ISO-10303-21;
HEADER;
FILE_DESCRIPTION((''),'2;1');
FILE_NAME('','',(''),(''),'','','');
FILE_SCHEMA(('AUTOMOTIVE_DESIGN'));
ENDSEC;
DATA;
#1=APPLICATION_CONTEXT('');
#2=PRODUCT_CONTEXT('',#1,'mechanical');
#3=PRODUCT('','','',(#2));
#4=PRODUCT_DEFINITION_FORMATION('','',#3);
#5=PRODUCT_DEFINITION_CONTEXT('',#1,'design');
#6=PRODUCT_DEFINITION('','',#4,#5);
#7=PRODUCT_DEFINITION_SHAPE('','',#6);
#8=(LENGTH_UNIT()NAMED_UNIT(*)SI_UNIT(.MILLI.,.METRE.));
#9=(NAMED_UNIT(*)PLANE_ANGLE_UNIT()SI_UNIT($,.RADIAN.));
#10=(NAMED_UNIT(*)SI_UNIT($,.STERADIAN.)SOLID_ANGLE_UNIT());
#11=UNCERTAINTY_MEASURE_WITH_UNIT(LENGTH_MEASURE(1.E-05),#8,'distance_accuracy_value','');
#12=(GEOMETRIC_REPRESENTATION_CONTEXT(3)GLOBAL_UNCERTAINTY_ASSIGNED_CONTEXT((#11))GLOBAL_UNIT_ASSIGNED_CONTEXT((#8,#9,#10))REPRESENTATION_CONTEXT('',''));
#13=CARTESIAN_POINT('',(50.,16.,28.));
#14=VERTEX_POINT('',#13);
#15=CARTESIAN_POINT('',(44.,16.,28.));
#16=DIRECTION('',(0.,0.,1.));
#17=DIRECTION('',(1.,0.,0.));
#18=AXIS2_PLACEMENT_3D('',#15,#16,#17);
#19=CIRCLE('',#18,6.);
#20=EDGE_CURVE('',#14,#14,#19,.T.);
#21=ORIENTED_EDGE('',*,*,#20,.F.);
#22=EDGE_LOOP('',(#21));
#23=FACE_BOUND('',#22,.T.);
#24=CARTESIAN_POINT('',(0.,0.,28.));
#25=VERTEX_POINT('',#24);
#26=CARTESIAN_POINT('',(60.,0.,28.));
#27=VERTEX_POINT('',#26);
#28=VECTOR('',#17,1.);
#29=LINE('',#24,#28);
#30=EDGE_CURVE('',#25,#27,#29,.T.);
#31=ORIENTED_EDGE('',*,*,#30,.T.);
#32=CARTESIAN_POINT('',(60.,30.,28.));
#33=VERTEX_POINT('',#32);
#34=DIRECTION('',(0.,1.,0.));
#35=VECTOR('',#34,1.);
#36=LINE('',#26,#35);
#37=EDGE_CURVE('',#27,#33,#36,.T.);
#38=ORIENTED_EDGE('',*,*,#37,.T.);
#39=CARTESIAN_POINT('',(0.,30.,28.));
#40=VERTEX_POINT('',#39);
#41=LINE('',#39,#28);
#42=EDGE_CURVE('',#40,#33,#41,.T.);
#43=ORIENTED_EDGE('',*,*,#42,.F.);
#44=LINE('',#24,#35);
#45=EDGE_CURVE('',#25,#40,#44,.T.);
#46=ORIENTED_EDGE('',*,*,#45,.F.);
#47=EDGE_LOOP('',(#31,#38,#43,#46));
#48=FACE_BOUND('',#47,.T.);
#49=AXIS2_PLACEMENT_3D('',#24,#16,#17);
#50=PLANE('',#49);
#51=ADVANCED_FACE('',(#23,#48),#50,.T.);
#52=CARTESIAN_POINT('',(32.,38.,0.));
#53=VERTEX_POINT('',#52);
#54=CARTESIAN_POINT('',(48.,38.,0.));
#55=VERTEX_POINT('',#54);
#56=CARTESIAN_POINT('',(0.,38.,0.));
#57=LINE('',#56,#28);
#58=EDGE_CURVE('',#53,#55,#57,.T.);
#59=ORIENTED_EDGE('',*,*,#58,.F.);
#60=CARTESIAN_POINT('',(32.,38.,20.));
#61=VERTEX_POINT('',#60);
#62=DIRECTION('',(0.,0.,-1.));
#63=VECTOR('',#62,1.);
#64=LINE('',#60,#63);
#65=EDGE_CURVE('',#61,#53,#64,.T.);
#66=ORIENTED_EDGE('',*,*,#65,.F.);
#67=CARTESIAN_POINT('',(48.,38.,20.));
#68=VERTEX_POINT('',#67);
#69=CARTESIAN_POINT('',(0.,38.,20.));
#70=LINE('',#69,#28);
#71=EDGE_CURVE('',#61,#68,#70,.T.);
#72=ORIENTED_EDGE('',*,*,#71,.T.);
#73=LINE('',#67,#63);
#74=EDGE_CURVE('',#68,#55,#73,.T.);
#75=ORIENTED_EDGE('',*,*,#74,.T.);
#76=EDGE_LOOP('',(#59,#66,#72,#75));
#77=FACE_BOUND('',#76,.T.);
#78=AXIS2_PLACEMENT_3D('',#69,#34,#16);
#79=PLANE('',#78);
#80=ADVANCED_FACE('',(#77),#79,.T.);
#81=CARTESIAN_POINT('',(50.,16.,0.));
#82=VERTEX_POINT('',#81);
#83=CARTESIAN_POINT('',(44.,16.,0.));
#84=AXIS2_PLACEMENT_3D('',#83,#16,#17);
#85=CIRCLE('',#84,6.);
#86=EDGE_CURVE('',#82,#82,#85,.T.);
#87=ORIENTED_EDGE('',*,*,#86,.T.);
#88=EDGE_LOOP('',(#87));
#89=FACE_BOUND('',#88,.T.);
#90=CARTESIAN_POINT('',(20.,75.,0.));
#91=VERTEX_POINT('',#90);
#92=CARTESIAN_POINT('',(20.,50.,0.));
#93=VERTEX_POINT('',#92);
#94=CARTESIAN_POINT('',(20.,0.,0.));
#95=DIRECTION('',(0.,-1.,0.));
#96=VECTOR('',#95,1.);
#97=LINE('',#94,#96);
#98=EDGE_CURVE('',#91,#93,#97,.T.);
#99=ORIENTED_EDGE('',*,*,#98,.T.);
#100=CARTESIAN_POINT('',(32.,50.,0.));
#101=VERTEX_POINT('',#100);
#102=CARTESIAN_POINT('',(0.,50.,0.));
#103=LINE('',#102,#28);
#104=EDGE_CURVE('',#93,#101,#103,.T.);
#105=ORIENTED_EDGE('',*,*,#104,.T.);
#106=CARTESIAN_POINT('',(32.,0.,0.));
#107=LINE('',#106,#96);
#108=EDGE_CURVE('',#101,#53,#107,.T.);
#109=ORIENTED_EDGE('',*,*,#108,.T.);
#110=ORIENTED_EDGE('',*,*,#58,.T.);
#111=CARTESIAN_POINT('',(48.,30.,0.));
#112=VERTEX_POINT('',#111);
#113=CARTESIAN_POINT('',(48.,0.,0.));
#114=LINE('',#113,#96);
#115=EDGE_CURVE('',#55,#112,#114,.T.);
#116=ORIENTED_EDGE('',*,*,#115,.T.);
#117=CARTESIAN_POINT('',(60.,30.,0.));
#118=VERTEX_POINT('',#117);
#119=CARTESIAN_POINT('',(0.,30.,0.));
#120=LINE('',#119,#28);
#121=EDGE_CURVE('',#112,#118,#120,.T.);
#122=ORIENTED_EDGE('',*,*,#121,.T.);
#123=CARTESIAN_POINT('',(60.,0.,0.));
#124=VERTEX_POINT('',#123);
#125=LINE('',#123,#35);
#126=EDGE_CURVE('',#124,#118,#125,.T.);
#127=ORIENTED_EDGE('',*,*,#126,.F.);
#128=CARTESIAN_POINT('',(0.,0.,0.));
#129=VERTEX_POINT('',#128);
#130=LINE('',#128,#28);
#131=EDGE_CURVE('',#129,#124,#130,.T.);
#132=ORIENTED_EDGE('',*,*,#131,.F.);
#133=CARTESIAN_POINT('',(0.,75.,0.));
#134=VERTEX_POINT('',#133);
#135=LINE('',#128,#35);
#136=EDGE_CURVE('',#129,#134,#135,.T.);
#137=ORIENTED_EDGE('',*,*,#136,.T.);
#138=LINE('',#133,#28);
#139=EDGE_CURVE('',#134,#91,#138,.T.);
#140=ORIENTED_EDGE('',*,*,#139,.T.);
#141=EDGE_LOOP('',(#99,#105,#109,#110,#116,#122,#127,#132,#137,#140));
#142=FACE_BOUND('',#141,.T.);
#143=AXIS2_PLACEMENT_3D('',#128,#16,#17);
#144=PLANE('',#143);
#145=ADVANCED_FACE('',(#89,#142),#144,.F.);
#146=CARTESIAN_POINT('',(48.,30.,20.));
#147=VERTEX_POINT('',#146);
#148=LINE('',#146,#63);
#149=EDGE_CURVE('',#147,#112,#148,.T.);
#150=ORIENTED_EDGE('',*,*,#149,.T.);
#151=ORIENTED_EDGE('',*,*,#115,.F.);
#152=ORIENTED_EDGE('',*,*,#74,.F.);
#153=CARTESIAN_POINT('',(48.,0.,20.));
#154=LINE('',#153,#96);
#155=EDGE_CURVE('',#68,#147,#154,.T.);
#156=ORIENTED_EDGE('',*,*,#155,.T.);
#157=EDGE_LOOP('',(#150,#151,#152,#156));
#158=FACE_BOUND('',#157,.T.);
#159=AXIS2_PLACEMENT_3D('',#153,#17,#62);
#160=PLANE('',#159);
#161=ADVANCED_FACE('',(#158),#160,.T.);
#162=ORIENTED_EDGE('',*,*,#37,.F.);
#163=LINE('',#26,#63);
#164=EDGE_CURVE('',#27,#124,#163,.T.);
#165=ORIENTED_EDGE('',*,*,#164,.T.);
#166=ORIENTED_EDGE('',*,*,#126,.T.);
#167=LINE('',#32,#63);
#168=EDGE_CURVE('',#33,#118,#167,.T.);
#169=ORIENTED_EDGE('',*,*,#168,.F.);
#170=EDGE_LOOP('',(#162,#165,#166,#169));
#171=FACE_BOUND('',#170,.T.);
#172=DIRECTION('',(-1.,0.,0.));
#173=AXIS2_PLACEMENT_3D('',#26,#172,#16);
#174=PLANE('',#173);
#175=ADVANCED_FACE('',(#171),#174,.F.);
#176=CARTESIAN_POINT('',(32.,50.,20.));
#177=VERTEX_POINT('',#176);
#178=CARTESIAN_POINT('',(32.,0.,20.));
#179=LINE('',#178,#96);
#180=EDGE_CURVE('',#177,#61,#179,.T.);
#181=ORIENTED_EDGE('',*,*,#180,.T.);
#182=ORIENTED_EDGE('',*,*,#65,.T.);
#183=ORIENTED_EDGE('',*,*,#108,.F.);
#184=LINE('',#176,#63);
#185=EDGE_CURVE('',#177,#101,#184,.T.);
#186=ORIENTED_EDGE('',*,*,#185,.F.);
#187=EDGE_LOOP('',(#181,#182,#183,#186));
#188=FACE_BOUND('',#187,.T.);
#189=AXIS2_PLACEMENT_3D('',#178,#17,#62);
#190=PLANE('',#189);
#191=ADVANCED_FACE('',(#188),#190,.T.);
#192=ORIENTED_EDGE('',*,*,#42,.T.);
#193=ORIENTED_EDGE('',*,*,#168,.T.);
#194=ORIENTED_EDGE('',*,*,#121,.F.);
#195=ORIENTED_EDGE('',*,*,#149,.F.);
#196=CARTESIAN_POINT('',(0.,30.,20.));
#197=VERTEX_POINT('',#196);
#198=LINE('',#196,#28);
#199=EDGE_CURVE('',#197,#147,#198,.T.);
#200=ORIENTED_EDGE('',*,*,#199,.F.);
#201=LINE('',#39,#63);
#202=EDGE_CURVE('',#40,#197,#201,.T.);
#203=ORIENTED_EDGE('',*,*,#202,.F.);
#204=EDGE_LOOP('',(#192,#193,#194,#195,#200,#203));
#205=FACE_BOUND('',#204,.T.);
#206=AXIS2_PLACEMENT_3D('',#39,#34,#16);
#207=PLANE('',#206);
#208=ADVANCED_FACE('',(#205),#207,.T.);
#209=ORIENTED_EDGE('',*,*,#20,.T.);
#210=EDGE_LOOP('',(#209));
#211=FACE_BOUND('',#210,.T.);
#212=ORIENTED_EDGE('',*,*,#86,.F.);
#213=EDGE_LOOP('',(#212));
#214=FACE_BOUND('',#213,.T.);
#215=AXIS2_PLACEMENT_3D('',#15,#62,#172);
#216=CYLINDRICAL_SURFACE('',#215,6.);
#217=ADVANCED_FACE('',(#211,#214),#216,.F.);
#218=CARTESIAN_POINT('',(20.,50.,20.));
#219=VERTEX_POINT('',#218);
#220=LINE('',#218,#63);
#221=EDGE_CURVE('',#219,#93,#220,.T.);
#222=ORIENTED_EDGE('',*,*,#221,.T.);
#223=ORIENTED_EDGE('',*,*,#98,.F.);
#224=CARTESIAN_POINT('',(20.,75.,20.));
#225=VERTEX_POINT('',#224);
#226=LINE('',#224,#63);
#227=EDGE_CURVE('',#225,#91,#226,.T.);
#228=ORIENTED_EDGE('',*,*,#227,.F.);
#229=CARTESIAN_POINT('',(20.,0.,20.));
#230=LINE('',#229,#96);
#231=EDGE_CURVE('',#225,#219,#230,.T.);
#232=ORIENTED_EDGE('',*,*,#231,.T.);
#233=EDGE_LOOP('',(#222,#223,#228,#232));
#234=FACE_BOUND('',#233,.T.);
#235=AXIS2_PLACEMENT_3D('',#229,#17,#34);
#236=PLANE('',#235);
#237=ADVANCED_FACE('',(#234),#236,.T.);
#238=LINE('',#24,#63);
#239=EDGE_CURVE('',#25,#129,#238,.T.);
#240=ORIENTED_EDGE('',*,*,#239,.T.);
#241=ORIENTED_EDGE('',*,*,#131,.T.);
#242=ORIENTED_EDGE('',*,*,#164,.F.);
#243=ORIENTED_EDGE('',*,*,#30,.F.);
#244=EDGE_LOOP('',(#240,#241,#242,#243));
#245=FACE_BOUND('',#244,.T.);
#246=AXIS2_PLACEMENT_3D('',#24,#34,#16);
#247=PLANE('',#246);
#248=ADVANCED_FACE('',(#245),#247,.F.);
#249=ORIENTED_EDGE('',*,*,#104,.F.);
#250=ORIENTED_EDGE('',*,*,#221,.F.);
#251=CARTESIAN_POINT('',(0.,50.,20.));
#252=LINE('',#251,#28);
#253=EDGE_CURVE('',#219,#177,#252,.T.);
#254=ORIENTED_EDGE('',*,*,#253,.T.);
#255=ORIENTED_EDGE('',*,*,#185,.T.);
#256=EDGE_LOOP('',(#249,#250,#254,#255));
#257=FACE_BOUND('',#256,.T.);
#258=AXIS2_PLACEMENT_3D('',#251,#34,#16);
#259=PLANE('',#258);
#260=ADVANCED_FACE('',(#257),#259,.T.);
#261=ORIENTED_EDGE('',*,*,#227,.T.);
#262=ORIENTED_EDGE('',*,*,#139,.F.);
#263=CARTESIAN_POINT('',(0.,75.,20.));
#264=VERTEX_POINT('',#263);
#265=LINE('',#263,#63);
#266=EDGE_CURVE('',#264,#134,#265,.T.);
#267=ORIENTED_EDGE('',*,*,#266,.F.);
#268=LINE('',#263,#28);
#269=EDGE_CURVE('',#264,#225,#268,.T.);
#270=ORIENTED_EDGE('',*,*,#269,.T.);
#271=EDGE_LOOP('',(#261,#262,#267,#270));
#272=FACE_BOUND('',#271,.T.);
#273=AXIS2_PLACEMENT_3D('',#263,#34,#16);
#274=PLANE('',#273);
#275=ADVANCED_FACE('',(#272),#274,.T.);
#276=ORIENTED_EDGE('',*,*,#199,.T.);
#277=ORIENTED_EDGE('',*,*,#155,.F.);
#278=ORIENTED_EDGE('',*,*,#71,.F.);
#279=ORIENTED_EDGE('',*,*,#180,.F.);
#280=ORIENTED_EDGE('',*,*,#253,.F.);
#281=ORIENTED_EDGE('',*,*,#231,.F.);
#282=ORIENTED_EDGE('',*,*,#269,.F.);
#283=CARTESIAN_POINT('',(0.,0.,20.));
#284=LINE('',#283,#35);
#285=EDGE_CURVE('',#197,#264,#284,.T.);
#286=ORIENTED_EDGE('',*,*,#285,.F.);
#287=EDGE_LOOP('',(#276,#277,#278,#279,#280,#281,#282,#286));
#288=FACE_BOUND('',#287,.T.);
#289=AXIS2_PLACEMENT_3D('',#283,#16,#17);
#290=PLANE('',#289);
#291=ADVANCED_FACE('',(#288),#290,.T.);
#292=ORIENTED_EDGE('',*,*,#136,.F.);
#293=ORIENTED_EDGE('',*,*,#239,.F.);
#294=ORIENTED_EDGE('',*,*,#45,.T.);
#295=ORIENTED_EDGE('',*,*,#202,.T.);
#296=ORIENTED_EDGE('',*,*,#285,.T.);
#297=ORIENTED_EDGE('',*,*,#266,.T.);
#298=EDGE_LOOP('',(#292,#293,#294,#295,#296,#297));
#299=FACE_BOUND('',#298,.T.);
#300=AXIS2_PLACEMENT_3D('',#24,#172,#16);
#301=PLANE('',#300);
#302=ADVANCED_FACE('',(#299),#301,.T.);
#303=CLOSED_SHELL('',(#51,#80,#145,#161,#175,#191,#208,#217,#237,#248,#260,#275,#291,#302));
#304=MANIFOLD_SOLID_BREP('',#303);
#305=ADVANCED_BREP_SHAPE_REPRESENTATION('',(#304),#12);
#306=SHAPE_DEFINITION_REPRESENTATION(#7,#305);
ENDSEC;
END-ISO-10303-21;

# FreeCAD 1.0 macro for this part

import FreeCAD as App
import Part
import Sketcher

V = App.Vector
Q = App.Units.Quantity

doc = App.newDocument("Part")
body = doc.addObject("PartDesign::Body", "Body")

sketch1 = body.newObject("Sketcher::SketchObject", "Sketch")
sketch1.AttachmentSupport = (doc.getObject("XY_Plane"), [""])
sketch1.MapMode = "FlatFace"
sketch1.addGeometry([
    Part.LineSegment(V(0, 30, 0), V(0, 0, 0)),
    Part.LineSegment(V(0, 0, 0), V(60, 0, 0)),
    Part.LineSegment(V(60, 0, 0), V(60, 30, 0)),
    Part.LineSegment(V(60, 30, 0), V(0, 30, 0)),
    Part.Circle(V(44, 16, 0), V(0, 0, 1), 6),
], False)
sketch1.addConstraint([
    Sketcher.Constraint("Coincident", 0, 2, 1, 1),
    Sketcher.Constraint("Coincident", 1, 2, 2, 1),
    Sketcher.Constraint("Coincident", 2, 2, 3, 1),
    Sketcher.Constraint("Coincident", 3, 2, 0, 1),
    Sketcher.Constraint("Vertical", 0),
    Sketcher.Constraint("Horizontal", 1),
    Sketcher.Constraint("Vertical", 2),
    Sketcher.Constraint("Horizontal", 3),
    Sketcher.Constraint("Coincident", 0, 2, -1, 1),
    Sketcher.Constraint("Diameter", 4, Q("12 mm")),
    Sketcher.Constraint("DistanceX", 1, 1, 1, 2, Q("60 mm")),
    Sketcher.Constraint("DistanceY", 0, 2, 0, 1, Q("30 mm")),
    Sketcher.Constraint("DistanceX", -1, 1, 4, 3, Q("44 mm")),
    Sketcher.Constraint("DistanceY", -1, 1, 4, 3, Q("16 mm")),
])
pad1 = body.newObject("PartDesign::Pad", "Pad")
pad1.Profile = sketch1
pad1.Length = 28

sketch2 = body.newObject("Sketcher::SketchObject", "Sketch001")
sketch2.AttachmentSupport = (doc.getObject("XY_Plane"), [""])
sketch2.MapMode = "FlatFace"
sketch2.addGeometry([
    Part.LineSegment(V(0, 75, 0), V(0, 30, 0)),
    Part.LineSegment(V(0, 30, 0), V(48, 30, 0)),
    Part.LineSegment(V(48, 30, 0), V(48, 38, 0)),
    Part.LineSegment(V(48, 38, 0), V(32, 38, 0)),
    Part.LineSegment(V(32, 38, 0), V(32, 50, 0)),
    Part.LineSegment(V(32, 50, 0), V(20, 50, 0)),
    Part.LineSegment(V(20, 50, 0), V(20, 75, 0)),
    Part.LineSegment(V(20, 75, 0), V(0, 75, 0)),
], False)
sketch2.addConstraint([
    Sketcher.Constraint("Coincident", 0, 2, 1, 1),
    Sketcher.Constraint("Coincident", 1, 2, 2, 1),
    Sketcher.Constraint("Coincident", 2, 2, 3, 1),
    Sketcher.Constraint("Coincident", 3, 2, 4, 1),
    Sketcher.Constraint("Coincident", 4, 2, 5, 1),
    Sketcher.Constraint("Coincident", 5, 2, 6, 1),
    Sketcher.Constraint("Coincident", 6, 2, 7, 1),
    Sketcher.Constraint("Coincident", 7, 2, 0, 1),
    Sketcher.Constraint("Vertical", 0),
    Sketcher.Constraint("Horizontal", 1),
    Sketcher.Constraint("Vertical", 2),
    Sketcher.Constraint("Horizontal", 3),
    Sketcher.Constraint("Vertical", 4),
    Sketcher.Constraint("Horizontal", 5),
    Sketcher.Constraint("Vertical", 6),
    Sketcher.Constraint("Horizontal", 7),
    Sketcher.Constraint("PointOnObject", 0, 2, -2),
    Sketcher.Constraint("Equal", 5, 4),
    Sketcher.Constraint("DistanceX", 1, 1, 1, 2, Q("48 mm")),
    Sketcher.Constraint("DistanceX", 3, 2, 3, 1, Q("16 mm")),
    Sketcher.Constraint("DistanceX", 5, 2, 5, 1, Q("12 mm")),
    Sketcher.Constraint("DistanceY", 0, 2, 0, 1, Q("45 mm")),
    Sketcher.Constraint("DistanceY", 2, 1, 2, 2, Q("8 mm")),
    Sketcher.Constraint("DistanceY", -1, 1, 0, 2, Q("30 mm")),
])
pad2 = body.newObject("PartDesign::Pad", "Pad001")
pad2.Profile = sketch2
pad2.Length = 20

doc.recompute()
